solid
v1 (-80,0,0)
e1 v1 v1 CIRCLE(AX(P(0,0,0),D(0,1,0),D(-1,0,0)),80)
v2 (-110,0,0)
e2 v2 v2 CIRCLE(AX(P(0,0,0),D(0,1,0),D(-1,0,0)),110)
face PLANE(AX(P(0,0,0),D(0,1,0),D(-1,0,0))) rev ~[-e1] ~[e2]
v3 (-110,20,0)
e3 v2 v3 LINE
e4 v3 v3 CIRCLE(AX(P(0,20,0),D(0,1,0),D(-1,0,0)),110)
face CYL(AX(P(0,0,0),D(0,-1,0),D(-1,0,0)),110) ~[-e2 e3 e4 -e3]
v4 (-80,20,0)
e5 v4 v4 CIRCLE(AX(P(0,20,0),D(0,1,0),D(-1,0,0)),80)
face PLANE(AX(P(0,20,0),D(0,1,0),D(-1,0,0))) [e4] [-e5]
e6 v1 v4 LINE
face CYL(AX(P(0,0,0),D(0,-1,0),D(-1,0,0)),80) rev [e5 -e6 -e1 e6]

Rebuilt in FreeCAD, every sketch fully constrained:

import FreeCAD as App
import Part
import Sketcher
from FreeCAD import Vector
Q = App.Units.Quantity

doc = App.newDocument("Part")
body = doc.addObject("PartDesign::Body", "Body")

# Sketch on XZ plane
sketch1 = body.newObject("Sketcher::SketchObject", "Sketch")
sketch1.AttachmentSupport = (doc.getObject("XZ_Plane"), [""])
sketch1.MapMode = "FlatFace"
sketch1.addGeometry([
    Part.Circle(Vector(0, 0, 0), Vector(0, 0, 1), 110),
    Part.Circle(Vector(0, 0, 0), Vector(0, 0, 1), 80),
], False)
sketch1.addConstraint([
    Sketcher.Constraint("Coincident", 0, 3, -1, 1),
    Sketcher.Constraint("Coincident", 1, 3, -1, 1),
    Sketcher.Constraint("Diameter", 0, Q("220 mm")),
    Sketcher.Constraint("Diameter", 1, Q("160 mm")),
])
pad1 = body.newObject("PartDesign::Pad", "Pad")
pad1.Profile = sketch1
pad1.Length = 20
pad1.Reversed = True

doc.recompute()
